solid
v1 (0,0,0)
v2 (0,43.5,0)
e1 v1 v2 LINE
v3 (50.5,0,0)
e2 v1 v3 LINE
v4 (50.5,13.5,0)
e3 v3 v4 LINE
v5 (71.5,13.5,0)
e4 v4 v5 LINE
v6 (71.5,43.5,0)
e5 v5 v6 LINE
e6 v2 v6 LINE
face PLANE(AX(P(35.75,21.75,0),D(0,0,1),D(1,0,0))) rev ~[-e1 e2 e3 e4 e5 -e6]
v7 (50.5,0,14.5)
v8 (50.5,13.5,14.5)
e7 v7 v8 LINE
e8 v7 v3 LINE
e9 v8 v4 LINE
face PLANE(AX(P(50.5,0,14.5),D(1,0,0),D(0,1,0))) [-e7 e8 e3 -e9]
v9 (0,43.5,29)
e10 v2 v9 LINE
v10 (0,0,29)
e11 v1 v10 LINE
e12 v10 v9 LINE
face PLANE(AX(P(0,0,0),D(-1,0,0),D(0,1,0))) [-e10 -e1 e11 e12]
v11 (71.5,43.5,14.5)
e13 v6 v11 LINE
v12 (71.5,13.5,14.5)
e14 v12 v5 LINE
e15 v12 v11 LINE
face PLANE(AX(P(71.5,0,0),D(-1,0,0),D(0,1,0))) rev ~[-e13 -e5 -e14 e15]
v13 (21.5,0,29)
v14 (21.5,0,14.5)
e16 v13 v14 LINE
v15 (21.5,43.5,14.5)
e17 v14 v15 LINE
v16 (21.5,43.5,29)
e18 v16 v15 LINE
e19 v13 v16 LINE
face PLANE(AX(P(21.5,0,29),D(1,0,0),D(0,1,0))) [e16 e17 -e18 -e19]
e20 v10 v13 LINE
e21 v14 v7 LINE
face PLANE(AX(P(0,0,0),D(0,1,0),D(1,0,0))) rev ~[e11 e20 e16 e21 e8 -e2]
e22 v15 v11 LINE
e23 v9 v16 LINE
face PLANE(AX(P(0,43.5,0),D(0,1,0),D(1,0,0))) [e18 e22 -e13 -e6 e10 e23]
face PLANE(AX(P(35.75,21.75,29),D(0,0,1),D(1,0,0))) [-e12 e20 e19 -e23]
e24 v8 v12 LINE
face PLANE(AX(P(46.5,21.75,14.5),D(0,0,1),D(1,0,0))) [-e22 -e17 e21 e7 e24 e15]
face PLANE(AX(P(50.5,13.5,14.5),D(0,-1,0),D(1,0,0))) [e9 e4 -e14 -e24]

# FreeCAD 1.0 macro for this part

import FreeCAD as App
import Part
import Sketcher

V = App.Vector

doc = App.newDocument("Part")
body = doc.addObject("PartDesign::Body", "Body")

# Sketch on XY plane
sketch1 = doc.addObject("Sketcher::SketchObject", "Sketch")
body.addObject(sketch1)
sketch1.AttachmentSupport = (doc.XY_Plane, [""])
sketch1.MapMode = "FlatFace"
sketch1.addGeometry([
    Part.LineSegment(V(0, 44, 0), V(0, 0, 0)),
    Part.LineSegment(V(0, 0, 0), V(72, 0, 0)),
    Part.LineSegment(V(72, 0, 0), V(72, 44, 0)),
    Part.LineSegment(V(72, 44, 0), V(0, 44, 0)),
], False)
sketch1.addConstraint([
    Sketcher.Constraint("Coincident", 0, 2, 1, 1),
    Sketcher.Constraint("Coincident", 1, 2, 2, 1),
    Sketcher.Constraint("Coincident", 2, 2, 3, 1),
    Sketcher.Constraint("Coincident", 3, 2, 0, 1),
    Sketcher.Constraint("Vertical", 0),
    Sketcher.Constraint("Horizontal", 1),
    Sketcher.Constraint("Vertical", 2),
    Sketcher.Constraint("Horizontal", 3),
    Sketcher.Constraint("Coincident", 0, 2, -1, 1),
    Sketcher.Constraint("DistanceX", 1, 1, 1, 2, 71.5),
    Sketcher.Constraint("DistanceY", 0, 2, 0, 1, 43.5),
])
pad1 = doc.addObject("PartDesign::Pad", "Pad")
body.addObject(pad1)
pad1.Profile = sketch1
pad1.Length = 29

# Sketch on XY plane
sketch2 = doc.addObject("Sketcher::SketchObject", "Sketch001")
body.addObject(sketch2)
sketch2.AttachmentSupport = (doc.XY_Plane, [""])
sketch2.MapMode = "FlatFace"
sketch2.AttachmentOffset = App.Placement(V(0, 0, 29), App.Rotation())
sketch2.addGeometry([
    Part.LineSegment(V(22, 44, 0), V(22, 0, 0)),
    Part.LineSegment(V(22, 0, 0), V(72, 0, 0)),
    Part.LineSegment(V(72, 0, 0), V(72, 44, 0)),
    Part.LineSegment(V(72, 44, 0), V(22, 44, 0)),
], False)
sketch2.addConstraint([
    Sketcher.Constraint("Coincident", 0, 2, 1, 1),
    Sketcher.Constraint("Coincident", 1, 2, 2, 1),
    Sketcher.Constraint("Coincident", 2, 2, 3, 1),
    Sketcher.Constraint("Coincident", 3, 2, 0, 1),
    Sketcher.Constraint("Vertical", 0),
    Sketcher.Constraint("Horizontal", 1),
    Sketcher.Constraint("Vertical", 2),
    Sketcher.Constraint("Horizontal", 3),
    Sketcher.Constraint("PointOnObject", 0, 2, -1),
    Sketcher.Constraint("DistanceX", 1, 1, 1, 2, 50.0),
    Sketcher.Constraint("DistanceY", 0, 2, 0, 1, 43.5),
    Sketcher.Constraint("DistanceX", -1, 1, 0, 2, 21.5),
])
pocket1 = doc.addObject("PartDesign::Pocket", "Pocket")
body.addObject(pocket1)
pocket1.Profile = sketch2
pocket1.Length = 14.5

# Sketch on XY plane
sketch3 = doc.addObject("Sketcher::SketchObject", "Sketch002")
body.addObject(sketch3)
sketch3.AttachmentSupport = (doc.XY_Plane, [""])
sketch3.MapMode = "FlatFace"
sketch3.AttachmentOffset = App.Placement(V(0, 0, 14.5), App.Rotation())
sketch3.addGeometry([
    Part.LineSegment(V(50, 14, 0), V(50, 0, 0)),
    Part.LineSegment(V(50, 0, 0), V(72, 0, 0)),
    Part.LineSegment(V(72, 0, 0), V(72, 14, 0)),
    Part.LineSegment(V(72, 14, 0), V(50, 14, 0)),
], False)
sketch3.addConstraint([
    Sketcher.Constraint("Coincident", 0, 2, 1, 1),
    Sketcher.Constraint("Coincident", 1, 2, 2, 1),
    Sketcher.Constraint("Coincident", 2, 2, 3, 1),
    Sketcher.Constraint("Coincident", 3, 2, 0, 1),
    Sketcher.Constraint("Vertical", 0),
    Sketcher.Constraint("Horizontal", 1),
    Sketcher.Constraint("Vertical", 2),
    Sketcher.Constraint("Horizontal", 3),
    Sketcher.Constraint("PointOnObject", 0, 2, -1),
    Sketcher.Constraint("DistanceX", 1, 1, 1, 2, 21.0),
    Sketcher.Constraint("DistanceY", 0, 2, 0, 1, 13.5),
    Sketcher.Constraint("DistanceX", -1, 1, 0, 2, 50.5),
])
pocket2 = doc.addObject("PartDesign::Pocket", "Pocket001")
body.addObject(pocket2)
pocket2.Profile = sketch3
pocket2.Type = "ThroughAll"

doc.recompute()
